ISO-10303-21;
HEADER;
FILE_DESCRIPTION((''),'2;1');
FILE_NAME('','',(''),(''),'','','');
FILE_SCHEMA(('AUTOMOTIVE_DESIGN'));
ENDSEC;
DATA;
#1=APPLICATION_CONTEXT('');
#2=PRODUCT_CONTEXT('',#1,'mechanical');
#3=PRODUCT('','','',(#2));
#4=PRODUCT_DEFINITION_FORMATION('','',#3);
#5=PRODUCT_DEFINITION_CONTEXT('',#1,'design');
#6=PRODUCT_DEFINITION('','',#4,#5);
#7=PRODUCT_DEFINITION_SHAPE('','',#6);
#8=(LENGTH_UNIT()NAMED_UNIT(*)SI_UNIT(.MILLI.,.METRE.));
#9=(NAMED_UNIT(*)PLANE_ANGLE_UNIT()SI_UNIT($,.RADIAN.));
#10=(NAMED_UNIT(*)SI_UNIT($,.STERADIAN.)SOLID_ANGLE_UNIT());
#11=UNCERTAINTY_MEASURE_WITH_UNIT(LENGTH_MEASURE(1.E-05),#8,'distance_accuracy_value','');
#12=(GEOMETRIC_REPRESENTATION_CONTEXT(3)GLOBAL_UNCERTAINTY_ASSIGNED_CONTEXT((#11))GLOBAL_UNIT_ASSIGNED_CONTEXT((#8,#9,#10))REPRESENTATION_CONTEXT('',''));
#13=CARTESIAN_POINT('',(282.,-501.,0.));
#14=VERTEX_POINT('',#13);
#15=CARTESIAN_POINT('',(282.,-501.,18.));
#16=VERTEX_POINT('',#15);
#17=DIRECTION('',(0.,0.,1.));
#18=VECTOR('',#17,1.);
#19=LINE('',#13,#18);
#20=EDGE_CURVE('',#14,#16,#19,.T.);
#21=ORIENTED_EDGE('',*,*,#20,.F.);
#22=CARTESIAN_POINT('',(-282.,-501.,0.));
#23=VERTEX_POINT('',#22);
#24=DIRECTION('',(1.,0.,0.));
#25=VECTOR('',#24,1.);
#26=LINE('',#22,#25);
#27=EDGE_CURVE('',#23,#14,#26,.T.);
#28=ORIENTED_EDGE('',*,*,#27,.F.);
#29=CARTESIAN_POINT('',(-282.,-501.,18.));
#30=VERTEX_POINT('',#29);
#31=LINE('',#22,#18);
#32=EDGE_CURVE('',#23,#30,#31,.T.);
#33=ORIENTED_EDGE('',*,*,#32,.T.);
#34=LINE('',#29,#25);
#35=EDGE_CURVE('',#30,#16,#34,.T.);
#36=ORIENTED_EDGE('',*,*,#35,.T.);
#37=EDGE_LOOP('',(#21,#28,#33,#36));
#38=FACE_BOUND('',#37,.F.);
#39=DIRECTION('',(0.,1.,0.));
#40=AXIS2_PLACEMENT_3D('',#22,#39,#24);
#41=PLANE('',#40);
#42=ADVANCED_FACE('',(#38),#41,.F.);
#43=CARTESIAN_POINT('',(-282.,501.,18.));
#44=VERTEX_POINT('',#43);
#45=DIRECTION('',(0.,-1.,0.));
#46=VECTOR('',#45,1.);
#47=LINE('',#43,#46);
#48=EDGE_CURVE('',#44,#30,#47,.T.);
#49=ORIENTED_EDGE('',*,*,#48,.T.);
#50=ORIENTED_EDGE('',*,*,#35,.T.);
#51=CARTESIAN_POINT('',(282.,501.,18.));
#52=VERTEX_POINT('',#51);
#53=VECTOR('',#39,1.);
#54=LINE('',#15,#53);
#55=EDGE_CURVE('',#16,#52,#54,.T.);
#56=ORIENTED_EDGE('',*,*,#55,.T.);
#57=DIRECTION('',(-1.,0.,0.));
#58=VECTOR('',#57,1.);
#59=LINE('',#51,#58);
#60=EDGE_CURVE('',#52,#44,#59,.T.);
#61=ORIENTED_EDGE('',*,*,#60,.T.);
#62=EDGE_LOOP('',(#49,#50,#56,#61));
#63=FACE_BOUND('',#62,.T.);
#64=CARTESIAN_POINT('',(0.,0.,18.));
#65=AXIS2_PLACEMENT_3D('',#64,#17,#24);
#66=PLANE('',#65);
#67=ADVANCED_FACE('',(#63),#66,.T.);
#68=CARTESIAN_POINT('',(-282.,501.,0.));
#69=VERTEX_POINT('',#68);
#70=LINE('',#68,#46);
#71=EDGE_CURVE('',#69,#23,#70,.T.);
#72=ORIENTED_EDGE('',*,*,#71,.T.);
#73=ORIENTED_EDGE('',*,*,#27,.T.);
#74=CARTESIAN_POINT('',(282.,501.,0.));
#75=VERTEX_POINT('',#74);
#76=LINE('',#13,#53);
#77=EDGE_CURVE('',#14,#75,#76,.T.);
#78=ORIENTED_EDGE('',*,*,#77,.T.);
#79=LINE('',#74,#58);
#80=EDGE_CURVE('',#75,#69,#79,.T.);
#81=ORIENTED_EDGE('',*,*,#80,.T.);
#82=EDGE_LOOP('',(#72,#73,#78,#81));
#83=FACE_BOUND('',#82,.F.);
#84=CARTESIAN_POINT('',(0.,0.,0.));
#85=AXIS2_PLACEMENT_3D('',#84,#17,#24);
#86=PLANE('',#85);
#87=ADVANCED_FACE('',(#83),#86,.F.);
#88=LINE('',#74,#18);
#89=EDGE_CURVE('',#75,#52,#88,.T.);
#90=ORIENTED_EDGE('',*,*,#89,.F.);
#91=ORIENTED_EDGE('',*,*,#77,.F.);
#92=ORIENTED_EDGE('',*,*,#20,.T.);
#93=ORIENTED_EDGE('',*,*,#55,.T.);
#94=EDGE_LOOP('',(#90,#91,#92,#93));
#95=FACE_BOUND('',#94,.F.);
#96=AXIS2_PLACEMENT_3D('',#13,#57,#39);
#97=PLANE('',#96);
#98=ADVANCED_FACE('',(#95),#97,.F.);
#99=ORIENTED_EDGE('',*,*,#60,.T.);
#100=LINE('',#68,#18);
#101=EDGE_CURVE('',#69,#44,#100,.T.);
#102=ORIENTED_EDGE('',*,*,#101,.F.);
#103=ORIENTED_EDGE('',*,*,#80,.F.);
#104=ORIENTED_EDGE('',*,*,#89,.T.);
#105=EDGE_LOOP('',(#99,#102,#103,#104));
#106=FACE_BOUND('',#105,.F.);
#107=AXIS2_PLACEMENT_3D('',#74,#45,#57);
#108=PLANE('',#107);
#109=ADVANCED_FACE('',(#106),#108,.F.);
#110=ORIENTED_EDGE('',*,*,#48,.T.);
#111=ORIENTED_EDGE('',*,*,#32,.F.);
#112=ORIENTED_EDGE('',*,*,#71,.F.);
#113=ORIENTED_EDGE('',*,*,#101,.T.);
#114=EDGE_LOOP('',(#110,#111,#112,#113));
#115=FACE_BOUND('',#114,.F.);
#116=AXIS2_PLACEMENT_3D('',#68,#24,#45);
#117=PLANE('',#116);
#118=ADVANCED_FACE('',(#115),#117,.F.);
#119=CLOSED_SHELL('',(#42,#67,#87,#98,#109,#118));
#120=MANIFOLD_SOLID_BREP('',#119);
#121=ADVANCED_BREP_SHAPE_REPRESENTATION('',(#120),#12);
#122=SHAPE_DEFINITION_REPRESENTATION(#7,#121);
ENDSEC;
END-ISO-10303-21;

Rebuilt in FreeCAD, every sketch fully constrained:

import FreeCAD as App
import Part
import Sketcher

doc = App.newDocument("Part")
params = doc.addObject("Spreadsheet::Sheet", "Params")
for row, (alias, value) in enumerate([
    ("sketch1_width", "564 mm"),
    ("sketch1_height", "1002 mm"),
    ("pad1_length", "18 mm"),
], start=1):
    params.set(f"A{row}", alias)
    params.set(f"B{row}", "=" + value)
    params.setAlias(f"B{row}", alias)

body = doc.addObject("PartDesign::Body", "Body")

# Sketch on XY plane
sketch1 = body.newObject("Sketcher::SketchObject", "Sketch")
sketch1.AttachmentSupport = (doc.getObject("XY_Plane"), [""])
sketch1.MapMode = "FlatFace"
sketch1.addGeometry(Part.LineSegment(App.Vector(-282, 501, 0), App.Vector(-282, -501, 0)), False)
sketch1.addGeometry(Part.LineSegment(App.Vector(-282, -501, 0), App.Vector(282, -501, 0)), False)
sketch1.addGeometry(Part.LineSegment(App.Vector(282, -501, 0), App.Vector(282, 501, 0)), False)
sketch1.addGeometry(Part.LineSegment(App.Vector(282, 501, 0), App.Vector(-282, 501, 0)), False)
sketch1.addConstraint(Sketcher.Constraint("Coincident", 0, 2, 1, 1))
sketch1.addConstraint(Sketcher.Constraint("Coincident", 1, 2, 2, 1))
sketch1.addConstraint(Sketcher.Constraint("Coincident", 2, 2, 3, 1))
sketch1.addConstraint(Sketcher.Constraint("Coincident", 3, 2, 0, 1))
sketch1.addConstraint(Sketcher.Constraint("Vertical", 0))
sketch1.addConstraint(Sketcher.Constraint("Horizontal", 1))
sketch1.addConstraint(Sketcher.Constraint("Vertical", 2))
sketch1.addConstraint(Sketcher.Constraint("Horizontal", 3))
sketch1.addConstraint(Sketcher.Constraint("Symmetric", 0, 2, 2, 2, -1, 1))
sketch1.addConstraint(Sketcher.Constraint("DistanceX", 1, 1, 1, 2, 564.0))
sketch1.addConstraint(Sketcher.Constraint("DistanceY", 0, 2, 0, 1, 1002.0))
sketch1.setExpression("Constraints[9]", "Params.sketch1_width")
sketch1.setExpression("Constraints[10]", "Params.sketch1_height")
pad1 = body.newObject("PartDesign::Pad", "Pad")
pad1.Profile = sketch1
pad1.setExpression("Length", "Params.pad1_length")

doc.recompute()
